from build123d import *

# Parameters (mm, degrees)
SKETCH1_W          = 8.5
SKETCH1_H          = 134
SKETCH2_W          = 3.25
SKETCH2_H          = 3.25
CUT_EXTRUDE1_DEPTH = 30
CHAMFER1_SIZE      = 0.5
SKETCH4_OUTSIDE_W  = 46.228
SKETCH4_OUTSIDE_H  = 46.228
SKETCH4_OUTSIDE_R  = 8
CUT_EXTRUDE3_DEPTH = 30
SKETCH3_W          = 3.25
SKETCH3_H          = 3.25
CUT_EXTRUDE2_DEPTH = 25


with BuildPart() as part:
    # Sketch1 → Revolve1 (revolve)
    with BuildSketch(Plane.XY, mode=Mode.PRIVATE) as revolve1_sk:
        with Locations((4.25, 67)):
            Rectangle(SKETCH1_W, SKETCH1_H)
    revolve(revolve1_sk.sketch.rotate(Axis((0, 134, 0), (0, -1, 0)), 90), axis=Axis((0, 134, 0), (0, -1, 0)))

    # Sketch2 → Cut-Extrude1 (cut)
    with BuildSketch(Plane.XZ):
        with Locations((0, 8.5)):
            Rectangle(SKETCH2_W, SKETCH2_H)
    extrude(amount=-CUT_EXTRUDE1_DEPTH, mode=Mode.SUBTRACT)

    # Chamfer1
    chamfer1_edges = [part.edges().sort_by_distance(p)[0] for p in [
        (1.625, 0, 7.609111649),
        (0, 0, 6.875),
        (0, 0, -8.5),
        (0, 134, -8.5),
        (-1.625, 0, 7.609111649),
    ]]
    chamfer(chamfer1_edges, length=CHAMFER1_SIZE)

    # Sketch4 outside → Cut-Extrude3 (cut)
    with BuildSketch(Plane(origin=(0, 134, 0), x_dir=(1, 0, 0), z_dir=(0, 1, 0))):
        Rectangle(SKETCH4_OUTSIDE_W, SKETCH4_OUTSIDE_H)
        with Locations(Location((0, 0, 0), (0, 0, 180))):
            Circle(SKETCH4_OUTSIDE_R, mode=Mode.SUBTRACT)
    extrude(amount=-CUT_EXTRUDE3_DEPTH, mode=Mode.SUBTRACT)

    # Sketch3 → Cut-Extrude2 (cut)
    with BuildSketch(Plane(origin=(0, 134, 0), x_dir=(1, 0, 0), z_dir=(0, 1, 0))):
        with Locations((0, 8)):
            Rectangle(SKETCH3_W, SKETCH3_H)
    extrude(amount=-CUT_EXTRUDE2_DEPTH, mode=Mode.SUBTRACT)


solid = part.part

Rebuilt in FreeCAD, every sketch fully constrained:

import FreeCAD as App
import Part
import Sketcher

V = App.Vector
Q = App.Units.Quantity


def edges_at(feature, points):
    """Names of the edges that pass closest to the given points."""
    edges = feature.Shape.Edges
    near = lambda p: min(range(len(edges)), key=lambda i: edges[i].distToShape(Part.Vertex(*p))[0])
    return sorted({f"Edge{near(p) + 1}" for p in points})


def add_polygon(sketch, points):
    """Adds a closed chain of lines whose ends are joined by coincident constraints."""
    first, n = sketch.GeometryCount, len(points)
    for a, b in zip(points, points[1:] + points[:1]):
        sketch.addGeometry(Part.LineSegment(App.Vector(*a, 0), App.Vector(*b, 0)), False)
    for i in range(n):
        sketch.addConstraint(Sketcher.Constraint("Coincident", first + i, 2, first + (i + 1) % n, 1))

doc = App.newDocument("Part")
body = doc.addObject("PartDesign::Body", "Body")

sketch1 = body.newObject("Sketcher::SketchObject", "Sketch")
sketch1.AttachmentSupport = (doc.getObject("XY_Plane"), [""])
sketch1.MapMode = "FlatFace"
add_polygon(sketch1, [(0, 134), (0, 0), (8, 0), (8, 134)])
sketch1.addConstraint([
    Sketcher.Constraint("Vertical", 0),
    Sketcher.Constraint("Horizontal", 1),
    Sketcher.Constraint("Vertical", 2),
    Sketcher.Constraint("Horizontal", 3),
    Sketcher.Constraint("Coincident", 0, 2, -1, 1),
    Sketcher.Constraint("DistanceY", 0, 2, 0, 1, Q("134 mm")),
    Sketcher.Constraint("DistanceX", 1, 1, 1, 2, Q("8.5 mm")),
])
revolution = body.newObject("PartDesign::Revolution", "Revolution")
revolution.Profile = sketch1
revolution.ReferenceAxis = (sketch1, ["V_Axis"])
revolution.Angle = 360

sketch2 = body.newObject("Sketcher::SketchObject", "Sketch001")
sketch2.AttachmentSupport = (doc.getObject("XZ_Plane"), [""])
sketch2.MapMode = "FlatFace"
add_polygon(sketch2, [(-1.6, 10.1), (-1.6, 6.9), (1.6, 6.9), (1.6, 10.1)])
sketch2.addConstraint([
    Sketcher.Constraint("Vertical", 0),
    Sketcher.Constraint("Horizontal", 1),
    Sketcher.Constraint("Vertical", 2),
    Sketcher.Constraint("Horizontal", 3),
    Sketcher.Constraint("Equal", 3, 0),
    Sketcher.Constraint("DistanceX", 1, 1, 1, 2, Q("3.25 mm")),
    Sketcher.Constraint("DistanceX", 0, 2, -1, 1, Q("1.625 mm")),
    Sketcher.Constraint("DistanceY", -1, 1, 0, 2, Q("6.875 mm")),
])
pocket1 = body.newObject("PartDesign::Pocket", "Pocket")
pocket1.Profile = sketch2
pocket1.Length = 30
doc.recompute()

chamfer = body.newObject("PartDesign::Chamfer", "Chamfer")
chamfer.Base = (pocket1, edges_at(pocket1, [
    (1.625, 0, 7.609),
    (0, 0, 6.875),
    (0, 0, -8.5),
    (0, 134, -8.5),
    (-1.625, 0, 7.609),
]))
chamfer.Size = 0.5

sketch3 = body.newObject("Sketcher::SketchObject", "Sketch002")
sketch3.AttachmentSupport = (doc.getObject("XZ_Plane"), [""])
sketch3.MapMode = "FlatFace"
sketch3.AttachmentOffset = App.Placement(V(0, 0, -134), App.Rotation())
add_polygon(sketch3, [(-23, -23), (-23, 23), (23, 23), (23, -23)])
sketch3.addGeometry(Part.Circle(V(0, 0, 0), V(0, 0, 1), 8), False)
sketch3.addConstraint([
    Sketcher.Constraint("Vertical", 0),
    Sketcher.Constraint("Horizontal", 1),
    Sketcher.Constraint("Vertical", 2),
    Sketcher.Constraint("Horizontal", 3),
    Sketcher.Constraint("Coincident", 4, 3, -1, 1),
    Sketcher.Constraint("Symmetric", 0, 2, 2, 2, -1, 1),
    Sketcher.Constraint("Equal", 3, 0),
    Sketcher.Constraint("Diameter", 4, Q("16 mm")),
    Sketcher.Constraint("DistanceX", 1, 1, 1, 2, Q("46.228 mm")),
])
pocket2 = body.newObject("PartDesign::Pocket", "Pocket001")
pocket2.Profile = sketch3
pocket2.Length = 30
pocket2.Reversed = True

sketch4 = body.newObject("Sketcher::SketchObject", "Sketch003")
sketch4.AttachmentSupport = (doc.getObject("XZ_Plane"), [""])
sketch4.MapMode = "FlatFace"
sketch4.AttachmentOffset = App.Placement(V(0, 0, -134), App.Rotation())
add_polygon(sketch4, [(-1.6, -9.6), (-1.6, -6.4), (1.6, -6.4), (1.6, -9.6)])
sketch4.addConstraint([
    Sketcher.Constraint("Vertical", 0),
    Sketcher.Constraint("Horizontal", 1),
    Sketcher.Constraint("Vertical", 2),
    Sketcher.Constraint("Horizontal", 3),
    Sketcher.Constraint("Equal", 3, 0),
    Sketcher.Constraint("DistanceX", 1, 1, 1, 2, Q("3.25 mm")),
    Sketcher.Constraint("DistanceX", 0, 2, -1, 1, Q("1.625 mm")),
    Sketcher.Constraint("DistanceY", 0, 2, -1, 1, Q("6.375 mm")),
])
pocket3 = body.newObject("PartDesign::Pocket", "Pocket002")
pocket3.Profile = sketch4
pocket3.Length = 25
pocket3.Reversed = True

doc.recompute()
